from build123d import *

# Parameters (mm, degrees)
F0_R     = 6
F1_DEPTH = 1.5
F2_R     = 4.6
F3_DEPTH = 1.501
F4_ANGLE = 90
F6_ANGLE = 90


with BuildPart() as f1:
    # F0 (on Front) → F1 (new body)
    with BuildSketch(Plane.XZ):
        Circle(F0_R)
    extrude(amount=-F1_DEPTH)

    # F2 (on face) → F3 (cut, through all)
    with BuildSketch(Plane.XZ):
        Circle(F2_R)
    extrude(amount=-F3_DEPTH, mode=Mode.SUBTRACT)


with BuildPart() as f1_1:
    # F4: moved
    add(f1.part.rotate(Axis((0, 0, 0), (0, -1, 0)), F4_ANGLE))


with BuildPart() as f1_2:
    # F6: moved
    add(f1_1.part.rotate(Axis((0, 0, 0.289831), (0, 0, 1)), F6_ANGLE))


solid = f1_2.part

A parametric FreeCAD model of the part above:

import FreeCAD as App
import Part
import Sketcher
Q = App.Units.Quantity

doc = App.newDocument("Part")
body = doc.addObject("PartDesign::Body", "Body")

# Sketch on XZ plane
sketch1 = body.newObject("Sketcher::SketchObject", "Sketch")
sketch1.AttachmentSupport = (doc.getObject("XZ_Plane"), [""])
sketch1.MapMode = "FlatFace"
sketch1.addGeometry(Part.Circle(App.Vector(0, 0, 0), App.Vector(0, 0, 1), 6), False)
sketch1.addConstraint(Sketcher.Constraint("Coincident", 0, 3, -1, 1))
sketch1.addConstraint(Sketcher.Constraint("Diameter", 0, Q("12 mm")))
pad1 = body.newObject("PartDesign::Pad", "Pad")
pad1.Profile = sketch1
pad1.Length = 1.5
pad1.Reversed = True

# Sketch on XZ plane
sketch2 = body.newObject("Sketcher::SketchObject", "Sketch001")
sketch2.AttachmentSupport = (doc.getObject("XZ_Plane"), [""])
sketch2.MapMode = "FlatFace"
sketch2.addGeometry(Part.Circle(App.Vector(0, 0, 0), App.Vector(0, 0, 1), 4.6), False)
sketch2.addConstraint(Sketcher.Constraint("Coincident", 0, 3, -1, 1))
sketch2.addConstraint(Sketcher.Constraint("Diameter", 0, Q("9.2 mm")))
pocket1 = body.newObject("PartDesign::Pocket", "Pocket")
pocket1.Profile = sketch2
pocket1.Type = "ThroughAll"
body2 = doc.addObject("PartDesign::Body", "Body001")
doc.recompute()

body.Placement = App.Placement(App.Vector(0, 0, 0), App.Rotation(App.Vector(0, -1, 0), 90))
boolean = body2.newObject("PartDesign::Boolean", "Boolean")
boolean.Type = "Fuse"
boolean.addObjects([body])
body3 = doc.addObject("PartDesign::Body", "Body002")
doc.recompute()

body2.Placement = App.Placement(App.Vector(0, 0, 0), App.Rotation(App.Vector(0, 0, 1), 90))
boolean2 = body3.newObject("PartDesign::Boolean", "Boolean001")
boolean2.Type = "Fuse"
boolean2.addObjects([body2])

doc.recompute()
